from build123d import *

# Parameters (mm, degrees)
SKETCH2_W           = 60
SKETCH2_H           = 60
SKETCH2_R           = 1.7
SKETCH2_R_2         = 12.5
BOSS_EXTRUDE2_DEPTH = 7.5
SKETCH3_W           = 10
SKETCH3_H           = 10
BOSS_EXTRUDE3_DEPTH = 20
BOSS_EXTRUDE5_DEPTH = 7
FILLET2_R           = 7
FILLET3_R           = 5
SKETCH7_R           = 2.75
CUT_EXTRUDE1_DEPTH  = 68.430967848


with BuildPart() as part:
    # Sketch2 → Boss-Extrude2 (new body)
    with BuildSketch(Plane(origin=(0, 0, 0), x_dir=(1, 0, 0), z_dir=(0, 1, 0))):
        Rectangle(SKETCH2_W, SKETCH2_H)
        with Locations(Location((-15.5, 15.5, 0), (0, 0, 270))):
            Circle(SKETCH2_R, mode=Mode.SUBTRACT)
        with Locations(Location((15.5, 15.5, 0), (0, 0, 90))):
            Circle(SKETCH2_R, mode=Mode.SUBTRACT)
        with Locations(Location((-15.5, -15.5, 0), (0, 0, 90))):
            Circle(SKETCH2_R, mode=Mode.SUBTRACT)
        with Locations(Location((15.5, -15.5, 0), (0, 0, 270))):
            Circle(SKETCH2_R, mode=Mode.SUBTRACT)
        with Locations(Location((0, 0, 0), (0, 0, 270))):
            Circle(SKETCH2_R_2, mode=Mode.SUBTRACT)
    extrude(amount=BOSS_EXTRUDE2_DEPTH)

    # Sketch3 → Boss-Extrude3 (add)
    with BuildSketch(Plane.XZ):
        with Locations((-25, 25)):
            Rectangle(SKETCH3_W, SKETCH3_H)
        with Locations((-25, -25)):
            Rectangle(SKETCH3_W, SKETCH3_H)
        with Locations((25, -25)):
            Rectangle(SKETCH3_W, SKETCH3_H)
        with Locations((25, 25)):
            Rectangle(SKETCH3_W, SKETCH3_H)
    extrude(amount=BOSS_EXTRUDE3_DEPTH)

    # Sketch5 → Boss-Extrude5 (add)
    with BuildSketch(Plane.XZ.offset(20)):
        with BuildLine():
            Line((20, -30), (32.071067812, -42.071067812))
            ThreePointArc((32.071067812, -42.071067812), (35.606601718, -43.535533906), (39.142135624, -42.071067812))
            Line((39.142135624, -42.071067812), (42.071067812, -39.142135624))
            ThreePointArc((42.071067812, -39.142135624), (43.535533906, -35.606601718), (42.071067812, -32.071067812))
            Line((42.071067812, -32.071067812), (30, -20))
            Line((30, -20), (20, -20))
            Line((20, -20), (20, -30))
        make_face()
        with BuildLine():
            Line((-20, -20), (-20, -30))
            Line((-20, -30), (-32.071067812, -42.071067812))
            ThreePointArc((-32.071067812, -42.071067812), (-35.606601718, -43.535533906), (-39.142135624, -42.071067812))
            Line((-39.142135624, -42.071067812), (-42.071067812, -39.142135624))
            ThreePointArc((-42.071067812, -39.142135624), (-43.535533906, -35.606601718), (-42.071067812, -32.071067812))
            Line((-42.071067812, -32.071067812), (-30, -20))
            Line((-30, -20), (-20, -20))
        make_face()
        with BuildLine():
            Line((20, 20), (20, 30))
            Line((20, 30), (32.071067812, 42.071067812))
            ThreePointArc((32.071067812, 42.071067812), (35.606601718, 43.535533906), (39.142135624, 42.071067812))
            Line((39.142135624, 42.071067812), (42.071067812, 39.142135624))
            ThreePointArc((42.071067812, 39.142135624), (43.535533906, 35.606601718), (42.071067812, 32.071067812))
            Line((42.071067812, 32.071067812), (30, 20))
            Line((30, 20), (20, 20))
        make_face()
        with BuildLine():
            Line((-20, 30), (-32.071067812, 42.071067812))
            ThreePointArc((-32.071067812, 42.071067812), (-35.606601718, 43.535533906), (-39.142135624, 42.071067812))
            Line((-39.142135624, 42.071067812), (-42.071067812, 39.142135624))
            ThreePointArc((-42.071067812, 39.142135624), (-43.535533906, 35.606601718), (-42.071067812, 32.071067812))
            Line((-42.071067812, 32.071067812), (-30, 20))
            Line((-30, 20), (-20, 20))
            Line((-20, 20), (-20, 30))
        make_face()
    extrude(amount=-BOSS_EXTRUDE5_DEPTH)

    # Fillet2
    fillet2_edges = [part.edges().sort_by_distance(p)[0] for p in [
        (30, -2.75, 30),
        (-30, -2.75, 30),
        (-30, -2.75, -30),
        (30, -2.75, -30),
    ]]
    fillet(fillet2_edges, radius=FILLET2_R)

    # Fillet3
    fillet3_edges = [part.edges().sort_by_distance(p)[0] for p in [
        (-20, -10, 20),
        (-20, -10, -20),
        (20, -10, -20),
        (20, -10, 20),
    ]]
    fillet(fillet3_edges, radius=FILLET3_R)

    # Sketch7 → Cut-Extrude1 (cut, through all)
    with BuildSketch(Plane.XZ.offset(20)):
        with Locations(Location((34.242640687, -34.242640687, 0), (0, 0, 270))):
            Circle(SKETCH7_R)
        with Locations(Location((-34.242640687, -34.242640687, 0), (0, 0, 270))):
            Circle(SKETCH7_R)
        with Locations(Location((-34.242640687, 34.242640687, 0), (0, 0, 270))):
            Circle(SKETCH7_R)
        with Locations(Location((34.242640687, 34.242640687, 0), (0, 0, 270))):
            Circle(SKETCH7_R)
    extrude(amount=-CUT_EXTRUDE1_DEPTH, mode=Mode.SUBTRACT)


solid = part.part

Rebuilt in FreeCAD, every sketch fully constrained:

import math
import FreeCAD as App
import Part
import Sketcher
from FreeCAD import Vector
Q = App.Units.Quantity


def edges_at(feature, points):
    """Names of the edges that pass closest to the given points."""
    edges = feature.Shape.Edges
    near = lambda p: min(range(len(edges)), key=lambda i: edges[i].distToShape(Part.Vertex(*p))[0])
    return sorted({f"Edge{near(p) + 1}" for p in points})

doc = App.newDocument("Part")
body = doc.addObject("PartDesign::Body", "Body")

sketch1 = doc.addObject("Sketcher::SketchObject", "Sketch")
body.addObject(sketch1)
sketch1.AttachmentSupport = (doc.XZ_Plane, [""])
sketch1.MapMode = "FlatFace"
sketch1.addGeometry([
    Part.LineSegment(Vector(-30, -30, 0), Vector(-30, 30, 0)),
    Part.LineSegment(Vector(-30, 30, 0), Vector(30, 30, 0)),
    Part.LineSegment(Vector(30, 30, 0), Vector(30, -30, 0)),
    Part.LineSegment(Vector(30, -30, 0), Vector(-30, -30, 0)),
    Part.Circle(Vector(-15.5, 15.5, 0), Vector(0, 0, 1), 1.7),
    Part.Circle(Vector(15.5, 15.5, 0), Vector(0, 0, 1), 1.7),
    Part.Circle(Vector(-15.5, -15.5, 0), Vector(0, 0, 1), 1.7),
    Part.Circle(Vector(0, 0, 0), Vector(0, 0, 1), 12.5),
    Part.Circle(Vector(15.5, -15.5, 0), Vector(0, 0, 1), 1.7),
], False)
sketch1.addConstraint([
    Sketcher.Constraint("Coincident", 0, 2, 1, 1),
    Sketcher.Constraint("Coincident", 1, 2, 2, 1),
    Sketcher.Constraint("Coincident", 2, 2, 3, 1),
    Sketcher.Constraint("Coincident", 3, 2, 0, 1),
    Sketcher.Constraint("Vertical", 0),
    Sketcher.Constraint("Horizontal", 1),
    Sketcher.Constraint("Vertical", 2),
    Sketcher.Constraint("Horizontal", 3),
    Sketcher.Constraint("Coincident", 7, 3, -1, 1),
    Sketcher.Constraint("Equal", 4, 5),
    Sketcher.Constraint("Equal", 5, 6),
    Sketcher.Constraint("Equal", 6, 8),
    Sketcher.Constraint("Symmetric", 5, 3, 6, 3, -1, 1),
    Sketcher.Constraint("Symmetric", 4, 3, 8, 3, -1, 1),
    Sketcher.Constraint("Symmetric", 0, 2, 2, 2, -1, 1),
    Sketcher.Constraint("Symmetric", 4, 3, 5, 3, -2),
    Sketcher.Constraint("Equal", 3, 0),
    Sketcher.Constraint("Diameter", 7, Q("25 mm")),
    Sketcher.Constraint("Diameter", 4, Q("3.4 mm")),
    Sketcher.Constraint("DistanceX", 1, 1, 1, 2, Q("60 mm")),
    Sketcher.Constraint("DistanceX", 4, 3, 5, 3, Q("31 mm")),
    Sketcher.Constraint("DistanceY", 6, 3, 4, 3, Q("31 mm")),
])
pad1 = doc.addObject("PartDesign::Pad", "Pad")
body.addObject(pad1)
pad1.Profile = sketch1
pad1.Length = 7.5
pad1.Reversed = True

sketch2 = doc.addObject("Sketcher::SketchObject", "Sketch001")
body.addObject(sketch2)
sketch2.AttachmentSupport = (doc.XZ_Plane, [""])
sketch2.MapMode = "FlatFace"
sketch2.addGeometry([
    Part.LineSegment(Vector(-30, 30, 0), Vector(-30, 20, 0)),
    Part.LineSegment(Vector(-30, 20, 0), Vector(-20, 20, 0)),
    Part.LineSegment(Vector(-20, 20, 0), Vector(-20, 30, 0)),
    Part.LineSegment(Vector(-20, 30, 0), Vector(-30, 30, 0)),
    Part.LineSegment(Vector(-30, -20, 0), Vector(-30, -30, 0)),
    Part.LineSegment(Vector(-30, -30, 0), Vector(-20, -30, 0)),
    Part.LineSegment(Vector(-20, -30, 0), Vector(-20, -20, 0)),
    Part.LineSegment(Vector(-20, -20, 0), Vector(-30, -20, 0)),
    Part.LineSegment(Vector(20, -20, 0), Vector(20, -30, 0)),
    Part.LineSegment(Vector(20, -30, 0), Vector(30, -30, 0)),
    Part.LineSegment(Vector(30, -30, 0), Vector(30, -20, 0)),
    Part.LineSegment(Vector(30, -20, 0), Vector(20, -20, 0)),
    Part.LineSegment(Vector(20, 30, 0), Vector(20, 20, 0)),
    Part.LineSegment(Vector(20, 20, 0), Vector(30, 20, 0)),
    Part.LineSegment(Vector(30, 20, 0), Vector(30, 30, 0)),
    Part.LineSegment(Vector(30, 30, 0), Vector(20, 30, 0)),
], False)
sketch2.addConstraint([
    Sketcher.Constraint("Coincident", 0, 2, 1, 1),
    Sketcher.Constraint("Coincident", 1, 2, 2, 1),
    Sketcher.Constraint("Coincident", 2, 2, 3, 1),
    Sketcher.Constraint("Coincident", 3, 2, 0, 1),
    Sketcher.Constraint("Coincident", 4, 2, 5, 1),
    Sketcher.Constraint("Coincident", 5, 2, 6, 1),
    Sketcher.Constraint("Coincident", 6, 2, 7, 1),
    Sketcher.Constraint("Coincident", 7, 2, 4, 1),
    Sketcher.Constraint("Coincident", 8, 2, 9, 1),
    Sketcher.Constraint("Coincident", 9, 2, 10, 1),
    Sketcher.Constraint("Coincident", 10, 2, 11, 1),
    Sketcher.Constraint("Coincident", 11, 2, 8, 1),
    Sketcher.Constraint("Coincident", 12, 2, 13, 1),
    Sketcher.Constraint("Coincident", 13, 2, 14, 1),
    Sketcher.Constraint("Coincident", 14, 2, 15, 1),
    Sketcher.Constraint("Coincident", 15, 2, 12, 1),
    Sketcher.Constraint("Vertical", 0),
    Sketcher.Constraint("Horizontal", 1),
    Sketcher.Constraint("Vertical", 2),
    Sketcher.Constraint("Horizontal", 3),
    Sketcher.Constraint("Vertical", 4),
    Sketcher.Constraint("Horizontal", 5),
    Sketcher.Constraint("Vertical", 6),
    Sketcher.Constraint("Horizontal", 7),
    Sketcher.Constraint("Vertical", 8),
    Sketcher.Constraint("Horizontal", 9),
    Sketcher.Constraint("Vertical", 10),
    Sketcher.Constraint("Horizontal", 11),
    Sketcher.Constraint("Vertical", 12),
    Sketcher.Constraint("Horizontal", 13),
    Sketcher.Constraint("Vertical", 14),
    Sketcher.Constraint("Horizontal", 15),
    Sketcher.Constraint("Symmetric", 2, 2, 8, 2, -1, 1),
    Sketcher.Constraint("Symmetric", 0, 2, 10, 2, -1, 1),
    Sketcher.Constraint("Symmetric", 6, 2, 12, 2, -1, 1),
    Sketcher.Constraint("Symmetric", 4, 2, 14, 2, -1, 1),
    Sketcher.Constraint("Symmetric", 5, 2, 8, 2, -2),
    Sketcher.Constraint("Symmetric", 7, 2, 10, 2, -2),
    Sketcher.Constraint("Equal", 15, 0),
    Sketcher.Constraint("DistanceX", 1, 1, 1, 2, Q("10 mm")),
    Sketcher.Constraint("DistanceX", 0, 2, -1, 1, Q("30 mm")),
    Sketcher.Constraint("DistanceY", -1, 1, 0, 2, Q("20 mm")),
])
pad2 = doc.addObject("PartDesign::Pad", "Pad001")
body.addObject(pad2)
pad2.Profile = sketch2
pad2.Length = 20

sketch3 = doc.addObject("Sketcher::SketchObject", "Sketch002")
body.addObject(sketch3)
sketch3.AttachmentSupport = (doc.XZ_Plane, [""])
sketch3.MapMode = "FlatFace"
sketch3.AttachmentOffset = App.Placement(Vector(0, 0, 20), App.Rotation())
sketch3.addGeometry([
    Part.LineSegment(Vector(20, -30, 0), Vector(32.071068, -42.071068, 0)),
    Part.ArcOfCircle(Part.Circle(Vector(35.606602, -38.535534, 0), Vector(0, 0, 1), 5), math.radians(-135), math.radians(-45)),
    Part.LineSegment(Vector(39.142136, -42.071068, 0), Vector(42.071068, -39.142136, 0)),
    Part.ArcOfCircle(Part.Circle(Vector(38.535534, -35.606602, 0), Vector(0, 0, 1), 5), math.radians(-45), math.radians(45)),
    Part.LineSegment(Vector(42.071068, -32.071068, 0), Vector(30, -20, 0)),
    Part.LineSegment(Vector(30, -20, 0), Vector(20, -20, 0)),
    Part.LineSegment(Vector(20, -20, 0), Vector(20, -30, 0)),
    Part.LineSegment(Vector(-20, -30, 0), Vector(-20, -20, 0)),
    Part.LineSegment(Vector(-20, -20, 0), Vector(-30, -20, 0)),
    Part.LineSegment(Vector(-30, -20, 0), Vector(-42.071068, -32.071068, 0)),
    Part.ArcOfCircle(Part.Circle(Vector(-38.535534, -35.606602, 0), Vector(0, 0, 1), 5), math.radians(135), math.radians(225)),
    Part.LineSegment(Vector(-42.071068, -39.142136, 0), Vector(-39.142136, -42.071068, 0)),
    Part.ArcOfCircle(Part.Circle(Vector(-35.606602, -38.535534, 0), Vector(0, 0, 1), 5), math.radians(-135), math.radians(-45)),
    Part.LineSegment(Vector(-32.071068, -42.071068, 0), Vector(-20, -30, 0)),
    Part.LineSegment(Vector(20, 30, 0), Vector(20, 20, 0)),
    Part.LineSegment(Vector(20, 20, 0), Vector(30, 20, 0)),
    Part.LineSegment(Vector(30, 20, 0), Vector(42.071068, 32.071068, 0)),
    Part.ArcOfCircle(Part.Circle(Vector(38.535534, 35.606602, 0), Vector(0, 0, 1), 5), math.radians(-45), math.radians(45)),
    Part.LineSegment(Vector(42.071068, 39.142136, 0), Vector(39.142136, 42.071068, 0)),
    Part.ArcOfCircle(Part.Circle(Vector(35.606602, 38.535534, 0), Vector(0, 0, 1), 5), math.radians(45), math.radians(135)),
    Part.LineSegment(Vector(32.071068, 42.071068, 0), Vector(20, 30, 0)),
    Part.LineSegment(Vector(-20, 30, 0), Vector(-32.071068, 42.071068, 0)),
    Part.ArcOfCircle(Part.Circle(Vector(-35.606602, 38.535534, 0), Vector(0, 0, 1), 5), math.radians(45), math.radians(135)),
    Part.LineSegment(Vector(-39.142136, 42.071068, 0), Vector(-42.071068, 39.142136, 0)),
    Part.ArcOfCircle(Part.Circle(Vector(-38.535534, 35.606602, 0), Vector(0, 0, 1), 5), math.radians(135), math.radians(225)),
    Part.LineSegment(Vector(-42.071068, 32.071068, 0), Vector(-30, 20, 0)),
    Part.LineSegment(Vector(-30, 20, 0), Vector(-20, 20, 0)),
    Part.LineSegment(Vector(-20, 20, 0), Vector(-20, 30, 0)),
], False)
sketch3.addConstraint([
    Sketcher.Constraint("Tangent", 0, 2, 1, 1),
    Sketcher.Constraint("Tangent", 1, 2, 2, 1),
    Sketcher.Constraint("Tangent", 2, 2, 3, 1),
    Sketcher.Constraint("Tangent", 3, 2, 4, 1),
    Sketcher.Constraint("Coincident", 4, 2, 5, 1),
    Sketcher.Constraint("Coincident", 5, 2, 6, 1),
    Sketcher.Constraint("Coincident", 6, 2, 0, 1),
    Sketcher.Constraint("Coincident", 7, 2, 8, 1),
    Sketcher.Constraint("Coincident", 8, 2, 9, 1),
    Sketcher.Constraint("Tangent", 9, 2, 10, 1),
    Sketcher.Constraint("Tangent", 10, 2, 11, 1),
    Sketcher.Constraint("Tangent", 11, 2, 12, 1),
    Sketcher.Constraint("Tangent", 12, 2, 13, 1),
    Sketcher.Constraint("Coincident", 13, 2, 7, 1),
    Sketcher.Constraint("Coincident", 14, 2, 15, 1),
    Sketcher.Constraint("Coincident", 15, 2, 16, 1),
    Sketcher.Constraint("Tangent", 16, 2, 17, 1),
    Sketcher.Constraint("Tangent", 17, 2, 18, 1),
    Sketcher.Constraint("Tangent", 18, 2, 19, 1),
    Sketcher.Constraint("Tangent", 19, 2, 20, 1),
    Sketcher.Constraint("Coincident", 20, 2, 14, 1),
    Sketcher.Constraint("Tangent", 21, 2, 22, 1),
    Sketcher.Constraint("Tangent", 22, 2, 23, 1),
    Sketcher.Constraint("Tangent", 23, 2, 24, 1),
    Sketcher.Constraint("Tangent", 24, 2, 25, 1),
    Sketcher.Constraint("Coincident", 25, 2, 26, 1),
    Sketcher.Constraint("Coincident", 26, 2, 27, 1),
    Sketcher.Constraint("Coincident", 27, 2, 21, 1),
    Sketcher.Constraint("Horizontal", 5),
    Sketcher.Constraint("Vertical", 6),
    Sketcher.Constraint("Vertical", 7),
    Sketcher.Constraint("Horizontal", 8),
    Sketcher.Constraint("Vertical", 14),
    Sketcher.Constraint("Horizontal", 15),
    Sketcher.Constraint("Horizontal", 26),
    Sketcher.Constraint("Vertical", 27),
    Sketcher.Constraint("Equal", 1, 3),
    Sketcher.Constraint("Equal", 3, 10),
    Sketcher.Constraint("Equal", 10, 12),
    Sketcher.Constraint("Equal", 12, 17),
    Sketcher.Constraint("Equal", 17, 19),
    Sketcher.Constraint("Equal", 19, 22),
    Sketcher.Constraint("Equal", 22, 24),
    Sketcher.Constraint("Symmetric", 10, 3, 17, 3, -1, 1),
    Sketcher.Constraint("Symmetric", 12, 3, 19, 3, -1, 1),
    Sketcher.Constraint("Symmetric", 1, 3, 22, 3, -1, 1),
    Sketcher.Constraint("Symmetric", 3, 3, 24, 3, -1, 1),
    Sketcher.Constraint("Symmetric", 7, 2, 14, 2, -1, 1),
    Sketcher.Constraint("Symmetric", 4, 2, 25, 2, -1, 1),
    Sketcher.Constraint("Symmetric", 6, 2, 27, 2, -1, 1),
    Sketcher.Constraint("Symmetric", 3, 3, 10, 3, -2),
    Sketcher.Constraint("Symmetric", 1, 3, 12, 3, -2),
    Sketcher.Constraint("Symmetric", 5, 2, 7, 2, -2),
    Sketcher.Constraint("Perpendicular", 0, 2),
    Sketcher.Constraint("Perpendicular", 2, 4),
    Sketcher.Constraint("Perpendicular", 4, 9),
    Sketcher.Constraint("Perpendicular", 9, 11),
    Sketcher.Constraint("Perpendicular", 11, 13),
    Sketcher.Constraint("Parallel", 13, 16),
    Sketcher.Constraint("Perpendicular", 18, 20),
    Sketcher.Constraint("Equal", 26, 6),
    Sketcher.Constraint("Radius", 1, Q("5 mm")),
    Sketcher.Constraint("DistanceX", 5, 2, 5, 1, Q("10 mm")),
    Sketcher.Constraint("DistanceX", -1, 1, 4, 2, Q("30 mm")),
    Sketcher.Constraint("DistanceY", 4, 2, -1, 1, Q("20 mm")),
    Sketcher.Constraint("DistanceX", -1, 1, 1, 3, Q("35.606602 mm")),
])
pad3 = doc.addObject("PartDesign::Pad", "Pad002")
body.addObject(pad3)
pad3.Profile = sketch3
pad3.Length = 7
pad3.Reversed = True
doc.recompute()

fillet = doc.addObject("PartDesign::Fillet", "Fillet")
body.addObject(fillet)
fillet.Base = (pad3, edges_at(pad3, [
    (30, -2.75, 30),
    (-30, -2.75, 30),
    (-30, -2.75, -30),
    (30, -2.75, -30),
]))
fillet.Radius = 7
doc.recompute()

fillet2 = doc.addObject("PartDesign::Fillet", "Fillet001")
body.addObject(fillet2)
fillet2.Base = (fillet, edges_at(fillet, [
    (-20, -10, 20),
    (-20, -10, -20),
    (20, -10, -20),
    (20, -10, 20),
]))
fillet2.Radius = 5

sketch4 = doc.addObject("Sketcher::SketchObject", "Sketch003")
body.addObject(sketch4)
sketch4.AttachmentSupport = (doc.XZ_Plane, [""])
sketch4.MapMode = "FlatFace"
sketch4.AttachmentOffset = App.Placement(Vector(0, 0, 20), App.Rotation())
sketch4.addGeometry([
    Part.Circle(Vector(34.242641, -34.242641, 0), Vector(0, 0, 1), 2.75),
    Part.Circle(Vector(-34.242641, -34.242641, 0), Vector(0, 0, 1), 2.75),
    Part.Circle(Vector(-34.242641, 34.242641, 0), Vector(0, 0, 1), 2.75),
    Part.Circle(Vector(34.242641, 34.242641, 0), Vector(0, 0, 1), 2.75),
], False)
sketch4.addConstraint([
    Sketcher.Constraint("Equal", 0, 1),
    Sketcher.Constraint("Equal", 1, 2),
    Sketcher.Constraint("Equal", 2, 3),
    Sketcher.Constraint("Symmetric", 0, 3, 2, 3, -1, 1),
    Sketcher.Constraint("Symmetric", 1, 3, 3, 3, -1, 1),
    Sketcher.Constraint("Symmetric", 0, 3, 1, 3, -2),
    Sketcher.Constraint("Diameter", 0, Q("5.5 mm")),
    Sketcher.Constraint("DistanceX", -1, 1, 0, 3, Q("34.242641 mm")),
    Sketcher.Constraint("DistanceY", 0, 3, -1, 1, Q("34.242641 mm")),
])
pocket1 = doc.addObject("PartDesign::Pocket", "Pocket")
body.addObject(pocket1)
pocket1.Profile = sketch4
pocket1.Type = "ThroughAll"

doc.recompute()
